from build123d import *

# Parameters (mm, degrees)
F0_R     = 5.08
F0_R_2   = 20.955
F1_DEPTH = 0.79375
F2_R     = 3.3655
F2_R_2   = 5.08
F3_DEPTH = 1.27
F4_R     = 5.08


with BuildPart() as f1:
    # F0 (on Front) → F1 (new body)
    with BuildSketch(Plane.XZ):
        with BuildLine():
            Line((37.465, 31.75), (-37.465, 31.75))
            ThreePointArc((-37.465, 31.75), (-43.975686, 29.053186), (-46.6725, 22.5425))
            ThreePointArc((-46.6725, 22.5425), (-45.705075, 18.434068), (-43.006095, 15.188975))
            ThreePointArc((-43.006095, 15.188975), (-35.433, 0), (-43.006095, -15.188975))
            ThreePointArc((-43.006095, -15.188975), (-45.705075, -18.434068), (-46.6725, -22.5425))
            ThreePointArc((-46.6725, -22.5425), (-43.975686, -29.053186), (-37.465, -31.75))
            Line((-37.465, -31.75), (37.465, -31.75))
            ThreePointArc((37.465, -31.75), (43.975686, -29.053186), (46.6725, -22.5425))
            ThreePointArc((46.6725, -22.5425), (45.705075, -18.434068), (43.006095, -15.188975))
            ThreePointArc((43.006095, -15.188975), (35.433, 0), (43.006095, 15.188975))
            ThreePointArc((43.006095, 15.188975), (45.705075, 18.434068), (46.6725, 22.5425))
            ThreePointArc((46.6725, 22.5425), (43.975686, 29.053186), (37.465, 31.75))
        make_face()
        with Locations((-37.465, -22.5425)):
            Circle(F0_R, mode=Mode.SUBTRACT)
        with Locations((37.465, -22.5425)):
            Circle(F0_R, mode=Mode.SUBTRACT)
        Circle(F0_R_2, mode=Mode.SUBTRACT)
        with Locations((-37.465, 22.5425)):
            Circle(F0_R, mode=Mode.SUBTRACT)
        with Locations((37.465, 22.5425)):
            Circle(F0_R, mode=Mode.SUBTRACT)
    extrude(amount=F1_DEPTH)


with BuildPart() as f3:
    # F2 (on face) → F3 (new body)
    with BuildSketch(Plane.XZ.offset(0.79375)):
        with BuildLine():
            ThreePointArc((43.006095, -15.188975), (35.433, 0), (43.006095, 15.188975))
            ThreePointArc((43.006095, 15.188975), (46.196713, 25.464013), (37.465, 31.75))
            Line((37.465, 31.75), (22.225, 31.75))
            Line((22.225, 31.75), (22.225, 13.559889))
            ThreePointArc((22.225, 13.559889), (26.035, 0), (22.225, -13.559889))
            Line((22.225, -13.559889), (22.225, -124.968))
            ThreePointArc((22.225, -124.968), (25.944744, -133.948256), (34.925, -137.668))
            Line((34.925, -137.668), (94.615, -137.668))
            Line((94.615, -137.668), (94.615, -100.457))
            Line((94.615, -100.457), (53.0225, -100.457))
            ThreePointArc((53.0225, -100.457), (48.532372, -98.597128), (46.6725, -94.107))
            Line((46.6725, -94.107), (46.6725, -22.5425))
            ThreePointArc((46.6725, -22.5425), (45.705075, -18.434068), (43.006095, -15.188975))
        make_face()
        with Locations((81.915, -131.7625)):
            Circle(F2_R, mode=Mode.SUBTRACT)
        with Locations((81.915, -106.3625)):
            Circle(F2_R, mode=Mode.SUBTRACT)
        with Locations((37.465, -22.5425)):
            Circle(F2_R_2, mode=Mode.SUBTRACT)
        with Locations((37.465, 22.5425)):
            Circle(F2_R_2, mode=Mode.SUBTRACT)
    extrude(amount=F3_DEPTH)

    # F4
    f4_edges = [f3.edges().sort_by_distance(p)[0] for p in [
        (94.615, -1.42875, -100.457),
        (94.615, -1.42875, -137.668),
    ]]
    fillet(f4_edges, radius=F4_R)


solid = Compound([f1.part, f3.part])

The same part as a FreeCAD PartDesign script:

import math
import FreeCAD as App
import Part
import Sketcher
from FreeCAD import Vector
Q = App.Units.Quantity


def edges_at(feature, points):
    """Names of the edges that pass closest to the given points."""
    edges = feature.Shape.Edges
    near = lambda p: min(range(len(edges)), key=lambda i: edges[i].distToShape(Part.Vertex(*p))[0])
    return sorted({f"Edge{near(p) + 1}" for p in points})

doc = App.newDocument("Part")
body = doc.addObject("PartDesign::Body", "Body")

sketch1 = body.newObject("Sketcher::SketchObject", "Sketch")
sketch1.AttachmentSupport = (doc.getObject("XZ_Plane"), [""])
sketch1.MapMode = "FlatFace"
sketch1.addGeometry([
    Part.LineSegment(Vector(37, 32, 0), Vector(-37, 32, 0)),
    Part.ArcOfCircle(Part.Circle(Vector(-37, 23, 0), Vector(0, 0, 1), 9), math.radians(90), math.radians(180)),
    Part.ArcOfCircle(Part.Circle(Vector(-37, 23, 0), Vector(0, 0, 1), 9), math.radians(-180), math.radians(-127)),
    Part.ArcOfCircle(Part.Circle(Vector(-54, 0, 0), Vector(0, 0, 1), 19), math.radians(-53), math.radians(53)),
    Part.ArcOfCircle(Part.Circle(Vector(-37, -23, 0), Vector(0, 0, 1), 9), math.radians(127), math.radians(180)),
    Part.ArcOfCircle(Part.Circle(Vector(-37, -23, 0), Vector(0, 0, 1), 9), math.radians(180), math.radians(270)),
    Part.LineSegment(Vector(-37, -32, 0), Vector(37, -32, 0)),
    Part.ArcOfCircle(Part.Circle(Vector(37, -23, 0), Vector(0, 0, 1), 9), math.radians(-90), math.radians(0)),
    Part.ArcOfCircle(Part.Circle(Vector(37, -23, 0), Vector(0, 0, 1), 9), math.radians(0), math.radians(53)),
    Part.ArcOfCircle(Part.Circle(Vector(54, 0, 0), Vector(0, 0, 1), 19), math.radians(127), math.radians(233)),
    Part.ArcOfCircle(Part.Circle(Vector(37, 23, 0), Vector(0, 0, 1), 9), math.radians(-53), math.radians(0)),
    Part.ArcOfCircle(Part.Circle(Vector(37, 23, 0), Vector(0, 0, 1), 9), math.radians(0), math.radians(90)),
    Part.Circle(Vector(-37, -23, 0), Vector(0, 0, 1), 5),
    Part.Circle(Vector(37, -23, 0), Vector(0, 0, 1), 5),
    Part.Circle(Vector(0, 0, 0), Vector(0, 0, 1), 21),
    Part.Circle(Vector(-37, 23, 0), Vector(0, 0, 1), 5),
    Part.Circle(Vector(37, 23, 0), Vector(0, 0, 1), 5),
], False)
sketch1.addConstraint([
    Sketcher.Constraint("Tangent", 0, 2, 1, 1),
    Sketcher.Constraint("Tangent", 1, 2, 2, 1),
    Sketcher.Constraint("Tangent", 2, 2, 3, 2),
    Sketcher.Constraint("Tangent", 3, 1, 4, 1),
    Sketcher.Constraint("Tangent", 4, 2, 5, 1),
    Sketcher.Constraint("Tangent", 5, 2, 6, 1),
    Sketcher.Constraint("Tangent", 6, 2, 7, 1),
    Sketcher.Constraint("Tangent", 7, 2, 8, 1),
    Sketcher.Constraint("Tangent", 8, 2, 9, 2),
    Sketcher.Constraint("Tangent", 9, 1, 10, 1),
    Sketcher.Constraint("Tangent", 10, 2, 11, 1),
    Sketcher.Constraint("Tangent", 11, 2, 0, 1),
    Sketcher.Constraint("Horizontal", 0),
    Sketcher.Constraint("Horizontal", 6),
    Sketcher.Constraint("Coincident", 14, 3, -1, 1),
    Sketcher.Constraint("Coincident", 12, 3, 4, 3),
    Sketcher.Constraint("Coincident", 13, 3, 7, 3),
    Sketcher.Constraint("Coincident", 15, 3, 1, 3),
    Sketcher.Constraint("Coincident", 16, 3, 10, 3),
    Sketcher.Constraint("Equal", 2, 4),
    Sketcher.Constraint("Equal", 1, 5),
    Sketcher.Constraint("Equal", 5, 7),
    Sketcher.Constraint("Equal", 4, 8),
    Sketcher.Constraint("Equal", 3, 9),
    Sketcher.Constraint("Equal", 8, 10),
    Sketcher.Constraint("Equal", 7, 11),
    Sketcher.Constraint("Equal", 12, 13),
    Sketcher.Constraint("Equal", 13, 15),
    Sketcher.Constraint("Equal", 15, 16),
    Sketcher.Constraint("Symmetric", 1, 3, 7, 3, -1, 1),
    Sketcher.Constraint("Symmetric", 4, 2, 10, 2, -1, 1),
    Sketcher.Constraint("Symmetric", 4, 2, 7, 2, -2),
    Sketcher.Constraint("Horizontal", 16, 3, 1, 2),
    Sketcher.Constraint("Horizontal", 13, 3, 4, 2),
    Sketcher.Constraint("Vertical", 1, 3, 12, 3),
    Sketcher.Constraint("Diameter", 12, Q("0.4 in")),
    Sketcher.Constraint("Diameter", 14, Q("1.65 in")),
    Sketcher.Constraint("DistanceX", 0, 2, 0, 1, Q("2.95 in")),
    Sketcher.Constraint("Radius", 1, Q("0.3625 in")),
    Sketcher.Constraint("DistanceY", -1, 1, 0, 2, Q("1.25 in")),
    Sketcher.Constraint("Radius", 3, 19.018428),
])
pad1 = body.newObject("PartDesign::Pad", "Pad")
pad1.Profile = sketch1
pad1.Length = Q("0.03125 in")
body2 = doc.addObject("PartDesign::Body", "Body001")

sketch2 = body2.newObject("Sketcher::SketchObject", "Sketch001")
sketch2.AttachmentSupport = (doc.getObject("XZ_Plane001"), [""])
sketch2.MapMode = "FlatFace"
sketch2.AttachmentOffset = App.Placement(Vector(0, 0, 0.03125 * 25.4), App.Rotation())
sketch2.addGeometry([
    Part.ArcOfCircle(Part.Circle(Vector(54.5, 0, 0), Vector(0, 0, 1), 19), math.radians(127), math.radians(233)),
    Part.ArcOfCircle(Part.Circle(Vector(37.5, 22.5, 0), Vector(0, 0, 1), 9.2), math.radians(-53), math.radians(90)),
    Part.LineSegment(Vector(37.5, 31.8, 0), Vector(22.2, 31.8, 0)),
    Part.LineSegment(Vector(22.2, 31.8, 0), Vector(22.2, 13.6, 0)),
    Part.ArcOfCircle(Part.Circle(Vector(0, 0, 0), Vector(0, 0, 1), 26), math.radians(-31), math.radians(31)),
    Part.LineSegment(Vector(22.2, -13.6, 0), Vector(22.2, -125, 0)),
    Part.ArcOfCircle(Part.Circle(Vector(34.9, -125, 0), Vector(0, 0, 1), 12.7), math.radians(-180), math.radians(-90)),
    Part.LineSegment(Vector(34.9, -137.7, 0), Vector(94.6, -137.7, 0)),
    Part.LineSegment(Vector(94.6, -137.7, 0), Vector(94.6, -100.5, 0)),
    Part.LineSegment(Vector(94.6, -100.5, 0), Vector(53, -100.5, 0)),
    Part.ArcOfCircle(Part.Circle(Vector(53, -94.1, 0), Vector(0, 0, 1), 6.4), math.radians(-180), math.radians(-90)),
    Part.LineSegment(Vector(46.7, -94.1, 0), Vector(46.7, -22.5, 0)),
    Part.ArcOfCircle(Part.Circle(Vector(37.5, -22.5, 0), Vector(0, 0, 1), 9.2), math.radians(0), math.radians(53)),
    Part.Circle(Vector(81.9, -131.8, 0), Vector(0, 0, 1), 3.4),
    Part.Circle(Vector(81.9, -106.4, 0), Vector(0, 0, 1), 3.4),
    Part.Circle(Vector(37.5, -22.5, 0), Vector(0, 0, 1), 5.1),
    Part.Circle(Vector(37.5, 22.5, 0), Vector(0, 0, 1), 5.1),
], False)
sketch2.addConstraint([
    Sketcher.Constraint("Tangent", 0, 1, 1, 1),
    Sketcher.Constraint("Tangent", 1, 2, 2, 1),
    Sketcher.Constraint("Coincident", 2, 2, 3, 1),
    Sketcher.Constraint("Coincident", 3, 2, 4, 2),
    Sketcher.Constraint("Coincident", 4, 1, 5, 1),
    Sketcher.Constraint("Tangent", 5, 2, 6, 1),
    Sketcher.Constraint("Tangent", 6, 2, 7, 1),
    Sketcher.Constraint("Coincident", 7, 2, 8, 1),
    Sketcher.Constraint("Coincident", 8, 2, 9, 1),
    Sketcher.Constraint("Tangent", 9, 2, 10, 2),
    Sketcher.Constraint("Tangent", 10, 1, 11, 1),
    Sketcher.Constraint("Tangent", 11, 2, 12, 1),
    Sketcher.Constraint("Tangent", 12, 2, 0, 2),
    Sketcher.Constraint("Horizontal", 2),
    Sketcher.Constraint("Vertical", 3),
    Sketcher.Constraint("Vertical", 5),
    Sketcher.Constraint("Horizontal", 7),
    Sketcher.Constraint("Vertical", 8),
    Sketcher.Constraint("Horizontal", 9),
    Sketcher.Constraint("Vertical", 11),
    Sketcher.Constraint("Coincident", 4, 3, -1, 1),
    Sketcher.Constraint("Coincident", 15, 3, 12, 3),
    Sketcher.Constraint("Coincident", 16, 3, 1, 3),
    Sketcher.Constraint("Equal", 13, 14),
    Sketcher.Constraint("Equal", 15, 16),
    Sketcher.Constraint("Symmetric", 1, 3, 12, 3, -1),
    Sketcher.Constraint("PointOnObject", 0, 3, -1),
    Sketcher.Constraint("Vertical", 13, 3, 14, 3),
    Sketcher.Constraint("Vertical", 3, 2, 4, 1),
    Sketcher.Constraint("Diameter", 15, Q("0.4 in")),
    Sketcher.Constraint("Radius", 6, Q("0.5 in")),
    Sketcher.Constraint("Radius", 10, Q("0.25 in")),
    Sketcher.Constraint("Diameter", 13, Q("0.265 in")),
    Sketcher.Constraint("DistanceX", 2, 2, 2, 1, Q("0.6 in")),
    Sketcher.Constraint("Radius", 4, Q("1.0249999 in")),
    Sketcher.Constraint("DistanceY", 13, 3, 14, 3, Q("1 in")),
    Sketcher.Constraint("DistanceX", 7, 1, 7, 2, Q("2.35 in")),
    Sketcher.Constraint("Radius", 1, Q("0.3625 in")),
    Sketcher.Constraint("DistanceY", 13, 3, 12, 3, Q("4.2999999 in")),
    Sketcher.Constraint("DistanceX", 13, 3, 7, 2, Q("0.5 in")),
    Sketcher.Constraint("DistanceY", 8, 1, 8, 2, Q("1.465 in")),
    Sketcher.Constraint("DistanceY", 6, 3, -1, 1, Q("4.92 in")),
    Sketcher.Constraint("DistanceY", -1, 1, 1, 2, Q("1.25 in")),
    Sketcher.Constraint("DistanceX", -1, 1, 1, 3, Q("1.475 in")),
    Sketcher.Constraint("Radius", 0, 19.018428),
])
pad2 = body2.newObject("PartDesign::Pad", "Pad001")
pad2.Profile = sketch2
pad2.Length = Q("0.05 in")
doc.recompute()

fillet = body2.newObject("PartDesign::Fillet", "Fillet")
fillet.Base = (pad2, edges_at(pad2, [(94.615, -1.429, -100.457), (94.615, -1.429, -137.668)]))
fillet.Radius = Q("0.2 in")

doc.recompute()
